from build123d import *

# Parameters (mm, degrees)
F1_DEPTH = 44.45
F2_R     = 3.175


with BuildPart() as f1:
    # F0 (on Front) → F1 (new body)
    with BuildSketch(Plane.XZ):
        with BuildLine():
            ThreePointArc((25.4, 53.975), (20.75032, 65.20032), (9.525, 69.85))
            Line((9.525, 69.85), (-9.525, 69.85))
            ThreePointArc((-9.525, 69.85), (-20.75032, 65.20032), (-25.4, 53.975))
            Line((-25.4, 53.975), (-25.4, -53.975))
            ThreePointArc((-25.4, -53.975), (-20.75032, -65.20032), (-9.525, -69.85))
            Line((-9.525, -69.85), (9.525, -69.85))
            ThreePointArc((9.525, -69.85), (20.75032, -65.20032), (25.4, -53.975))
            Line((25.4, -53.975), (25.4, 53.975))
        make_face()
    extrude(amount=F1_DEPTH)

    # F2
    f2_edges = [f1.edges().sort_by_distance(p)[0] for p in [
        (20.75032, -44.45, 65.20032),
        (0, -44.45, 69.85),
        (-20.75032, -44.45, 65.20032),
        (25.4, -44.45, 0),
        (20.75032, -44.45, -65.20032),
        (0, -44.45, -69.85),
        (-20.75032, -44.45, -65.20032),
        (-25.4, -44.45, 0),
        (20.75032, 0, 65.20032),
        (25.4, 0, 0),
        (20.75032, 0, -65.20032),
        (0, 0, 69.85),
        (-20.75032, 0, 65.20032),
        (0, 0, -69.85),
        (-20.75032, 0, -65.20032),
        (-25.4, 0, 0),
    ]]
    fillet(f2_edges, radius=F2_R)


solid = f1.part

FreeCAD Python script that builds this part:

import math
import FreeCAD as App
import Part
import Sketcher

V = App.Vector
Q = App.Units.Quantity


def edges_at(feature, points):
    """Names of the edges that pass closest to the given points."""
    edges = feature.Shape.Edges
    near = lambda p: min(range(len(edges)), key=lambda i: edges[i].distToShape(Part.Vertex(*p))[0])
    return sorted({f"Edge{near(p) + 1}" for p in points})

doc = App.newDocument("Part")
body = doc.addObject("PartDesign::Body", "Body")

sketch1 = body.newObject("Sketcher::SketchObject", "Sketch")
sketch1.AttachmentSupport = (doc.getObject("XZ_Plane"), [""])
sketch1.MapMode = "FlatFace"
sketch1.addGeometry(Part.ArcOfCircle(Part.Circle(V(10, 54, 0), V(0, 0, 1), 16), math.radians(0), math.radians(90)), False)
sketch1.addGeometry(Part.LineSegment(V(10, 70, 0), V(-10, 70, 0)), False)
sketch1.addGeometry(Part.ArcOfCircle(Part.Circle(V(-10, 54, 0), V(0, 0, 1), 16), math.radians(90), math.radians(180)), False)
sketch1.addGeometry(Part.LineSegment(V(-25, 54, 0), V(-25, -54, 0)), False)
sketch1.addGeometry(Part.ArcOfCircle(Part.Circle(V(-10, -54, 0), V(0, 0, 1), 16), math.radians(-180), math.radians(-90)), False)
sketch1.addGeometry(Part.LineSegment(V(-10, -70, 0), V(10, -70, 0)), False)
sketch1.addGeometry(Part.ArcOfCircle(Part.Circle(V(10, -54, 0), V(0, 0, 1), 16), math.radians(-90), math.radians(0)), False)
sketch1.addGeometry(Part.LineSegment(V(25, -54, 0), V(25, 54, 0)), False)
sketch1.addConstraint(Sketcher.Constraint("Tangent", 0, 2, 1, 1))
sketch1.addConstraint(Sketcher.Constraint("Tangent", 1, 2, 2, 1))
sketch1.addConstraint(Sketcher.Constraint("Tangent", 2, 2, 3, 1))
sketch1.addConstraint(Sketcher.Constraint("Tangent", 3, 2, 4, 1))
sketch1.addConstraint(Sketcher.Constraint("Tangent", 4, 2, 5, 1))
sketch1.addConstraint(Sketcher.Constraint("Tangent", 5, 2, 6, 1))
sketch1.addConstraint(Sketcher.Constraint("Tangent", 6, 2, 7, 1))
sketch1.addConstraint(Sketcher.Constraint("Tangent", 7, 2, 0, 1))
sketch1.addConstraint(Sketcher.Constraint("Horizontal", 1))
sketch1.addConstraint(Sketcher.Constraint("Vertical", 3))
sketch1.addConstraint(Sketcher.Constraint("Horizontal", 5))
sketch1.addConstraint(Sketcher.Constraint("Vertical", 7))
sketch1.addConstraint(Sketcher.Constraint("Equal", 0, 2))
sketch1.addConstraint(Sketcher.Constraint("Equal", 2, 4))
sketch1.addConstraint(Sketcher.Constraint("Equal", 4, 6))
sketch1.addConstraint(Sketcher.Constraint("Symmetric", 0, 3, 4, 3, -1, 1))
sketch1.addConstraint(Sketcher.Constraint("DistanceX", 2, 2, -1, 1, Q("1 in")))
sketch1.addConstraint(Sketcher.Constraint("Radius", 0, Q("0.625 in")))
sketch1.addConstraint(Sketcher.Constraint("DistanceY", 3, 2, 3, 1, Q("4.25 in")))
pad1 = body.newObject("PartDesign::Pad", "Pad")
pad1.Profile = sketch1
pad1.Length = Q("1.75 in")
doc.recompute()

fillet = body.newObject("PartDesign::Fillet", "Fillet")
fillet.Base = (pad1, edges_at(pad1, [
    (20.75, -44.45, 65.2),
    (0, -44.45, 69.85),
    (-20.75, -44.45, 65.2),
    (25.4, -44.45, 0),
    (20.75, -44.45, -65.2),
    (0, -44.45, -69.85),
    (-20.75, -44.45, -65.2),
    (-25.4, -44.45, 0),
    (20.75, 0, 65.2),
    (25.4, 0, 0),
    (20.75, 0, -65.2),
    (0, 0, 69.85),
    (-20.75, 0, 65.2),
    (0, 0, -69.85),
    (-20.75, 0, -65.2),
    (-25.4, 0, 0),
]))
fillet.Radius = Q("0.125 in")

doc.recompute()
